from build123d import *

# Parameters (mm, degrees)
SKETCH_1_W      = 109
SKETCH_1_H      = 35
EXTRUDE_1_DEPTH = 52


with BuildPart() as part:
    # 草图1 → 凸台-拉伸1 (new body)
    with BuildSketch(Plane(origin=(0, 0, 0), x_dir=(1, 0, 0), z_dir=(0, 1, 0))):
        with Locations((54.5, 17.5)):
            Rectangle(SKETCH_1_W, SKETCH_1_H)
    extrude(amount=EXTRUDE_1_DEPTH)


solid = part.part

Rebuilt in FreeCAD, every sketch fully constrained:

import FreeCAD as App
import Part
import Sketcher
Q = App.Units.Quantity

doc = App.newDocument("Part")
body = doc.addObject("PartDesign::Body", "Body")

# Sketch on XZ plane
sketch1 = doc.addObject("Sketcher::SketchObject", "Sketch")
body.addObject(sketch1)
sketch1.AttachmentSupport = (doc.XZ_Plane, [""])
sketch1.MapMode = "FlatFace"
sketch1.addGeometry(Part.LineSegment(App.Vector(0, -35, 0), App.Vector(0, 0, 0)), False)
sketch1.addGeometry(Part.LineSegment(App.Vector(0, 0, 0), App.Vector(109, 0, 0)), False)
sketch1.addGeometry(Part.LineSegment(App.Vector(109, 0, 0), App.Vector(109, -35, 0)), False)
sketch1.addGeometry(Part.LineSegment(App.Vector(109, -35, 0), App.Vector(0, -35, 0)), False)
sketch1.addConstraint(Sketcher.Constraint("Coincident", 0, 2, 1, 1))
sketch1.addConstraint(Sketcher.Constraint("Coincident", 1, 2, 2, 1))
sketch1.addConstraint(Sketcher.Constraint("Coincident", 2, 2, 3, 1))
sketch1.addConstraint(Sketcher.Constraint("Coincident", 3, 2, 0, 1))
sketch1.addConstraint(Sketcher.Constraint("Vertical", 0))
sketch1.addConstraint(Sketcher.Constraint("Horizontal", 1))
sketch1.addConstraint(Sketcher.Constraint("Vertical", 2))
sketch1.addConstraint(Sketcher.Constraint("Horizontal", 3))
sketch1.addConstraint(Sketcher.Constraint("Coincident", 0, 2, -1, 1))
sketch1.addConstraint(Sketcher.Constraint("DistanceX", 1, 1, 1, 2, Q("109 mm")))
sketch1.addConstraint(Sketcher.Constraint("DistanceY", 0, 1, 0, 2, Q("35 mm")))
pad1 = doc.addObject("PartDesign::Pad", "Pad")
body.addObject(pad1)
pad1.Profile = sketch1
pad1.Length = 52
pad1.Reversed = True

doc.recompute()
